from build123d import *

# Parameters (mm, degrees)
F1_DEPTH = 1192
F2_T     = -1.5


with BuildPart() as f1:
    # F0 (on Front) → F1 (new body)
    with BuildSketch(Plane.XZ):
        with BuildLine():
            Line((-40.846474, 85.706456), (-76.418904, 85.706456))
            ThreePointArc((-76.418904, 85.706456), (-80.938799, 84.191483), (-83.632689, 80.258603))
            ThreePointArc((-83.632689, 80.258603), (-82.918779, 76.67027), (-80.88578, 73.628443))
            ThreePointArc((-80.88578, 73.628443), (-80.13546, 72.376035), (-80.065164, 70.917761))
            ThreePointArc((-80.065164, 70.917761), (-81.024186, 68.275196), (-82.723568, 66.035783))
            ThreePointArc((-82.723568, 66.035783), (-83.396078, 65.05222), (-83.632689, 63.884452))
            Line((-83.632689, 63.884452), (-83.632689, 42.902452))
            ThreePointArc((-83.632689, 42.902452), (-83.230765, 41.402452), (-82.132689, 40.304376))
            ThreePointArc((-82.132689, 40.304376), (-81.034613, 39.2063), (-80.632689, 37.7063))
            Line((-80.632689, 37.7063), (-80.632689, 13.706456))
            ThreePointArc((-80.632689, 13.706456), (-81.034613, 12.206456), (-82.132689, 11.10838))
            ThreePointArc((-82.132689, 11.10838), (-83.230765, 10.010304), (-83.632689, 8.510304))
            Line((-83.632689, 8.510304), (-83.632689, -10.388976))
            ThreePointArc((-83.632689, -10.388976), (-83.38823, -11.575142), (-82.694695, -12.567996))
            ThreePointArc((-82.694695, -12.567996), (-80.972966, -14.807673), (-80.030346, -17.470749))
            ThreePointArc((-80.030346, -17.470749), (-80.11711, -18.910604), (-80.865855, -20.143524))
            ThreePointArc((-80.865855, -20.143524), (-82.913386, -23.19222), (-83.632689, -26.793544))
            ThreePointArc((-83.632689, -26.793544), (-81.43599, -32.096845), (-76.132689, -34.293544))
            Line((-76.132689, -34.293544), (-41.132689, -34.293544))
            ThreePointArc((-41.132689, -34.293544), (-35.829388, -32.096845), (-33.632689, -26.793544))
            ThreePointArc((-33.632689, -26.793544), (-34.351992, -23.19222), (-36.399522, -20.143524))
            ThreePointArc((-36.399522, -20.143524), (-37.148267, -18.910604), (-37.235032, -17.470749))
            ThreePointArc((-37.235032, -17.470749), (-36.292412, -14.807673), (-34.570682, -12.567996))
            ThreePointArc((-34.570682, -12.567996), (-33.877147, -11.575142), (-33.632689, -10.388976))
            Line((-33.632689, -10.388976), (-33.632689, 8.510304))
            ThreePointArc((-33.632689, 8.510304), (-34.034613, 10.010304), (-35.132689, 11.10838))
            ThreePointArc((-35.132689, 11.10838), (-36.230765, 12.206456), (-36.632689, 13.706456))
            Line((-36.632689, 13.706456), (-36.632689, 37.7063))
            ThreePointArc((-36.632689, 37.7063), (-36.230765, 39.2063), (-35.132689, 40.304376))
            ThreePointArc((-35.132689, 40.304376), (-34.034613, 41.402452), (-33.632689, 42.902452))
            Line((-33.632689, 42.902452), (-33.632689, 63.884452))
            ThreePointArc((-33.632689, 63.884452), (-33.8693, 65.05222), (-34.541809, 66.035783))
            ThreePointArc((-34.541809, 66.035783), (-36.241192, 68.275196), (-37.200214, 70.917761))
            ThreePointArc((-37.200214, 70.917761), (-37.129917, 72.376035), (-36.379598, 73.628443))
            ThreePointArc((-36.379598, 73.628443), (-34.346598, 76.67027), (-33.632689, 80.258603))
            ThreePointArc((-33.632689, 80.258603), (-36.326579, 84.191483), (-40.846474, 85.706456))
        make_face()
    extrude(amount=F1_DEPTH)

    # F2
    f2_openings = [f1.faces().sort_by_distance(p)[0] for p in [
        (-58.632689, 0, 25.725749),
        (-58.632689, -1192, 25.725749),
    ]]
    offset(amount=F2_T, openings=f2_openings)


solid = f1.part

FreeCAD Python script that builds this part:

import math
import FreeCAD as App
import Part
import Sketcher
Q = App.Units.Quantity


def faces_at(feature, points):
    """Names of the faces that lie closest to the given points."""
    faces = feature.Shape.Faces
    near = lambda p: min(range(len(faces)), key=lambda i: faces[i].distToShape(Part.Vertex(*p))[0])
    return sorted({f"Face{near(p) + 1}" for p in points})

doc = App.newDocument("Part")
params = doc.addObject("Spreadsheet::Sheet", "Params")
for row, (alias, value) in enumerate([
    ("sketch1_radius", "2.999998 mm"),
    ("sketch1_radius2", "3.000001 mm"),
    ("sketch1_radius3", "8.999999 mm"),
    ("sketch1_radius4", "7.5 mm"),
    ("sketch1_width", "35 mm"),
    ("pad1_length", "1192 mm"),
    ("thickness_wall", "1.5 mm"),
], start=1):
    params.set(f"A{row}", alias)
    params.set(f"B{row}", "=" + value)
    params.setAlias(f"B{row}", alias)

body = doc.addObject("PartDesign::Body", "Body")

# Sketch on XZ plane
sketch1 = body.newObject("Sketcher::SketchObject", "Sketch")
sketch1.AttachmentSupport = (doc.getObject("XZ_Plane"), [""])
sketch1.MapMode = "FlatFace"
sketch1.addGeometry([
    Part.LineSegment(App.Vector(-40.8, 85.7, 0), App.Vector(-76.4, 85.7, 0)),  # 0
    Part.ArcOfCircle(Part.Circle(App.Vector(-76.4, 78.2, 0), App.Vector(0, 0, 1), 7.5), math.radians(90), math.radians(164)),  # 1
    Part.ArcOfCircle(Part.Circle(App.Vector(-74.3, 80.3, 0), App.Vector(0, 0, 1), 9.4), math.radians(-180), math.radians(-135)),  # 2
    Part.ArcOfCircle(Part.Circle(App.Vector(-83, 71.5, 0), App.Vector(0, 0, 1), 3), math.radians(-11), math.radians(45)),  # 3
    Part.ArcOfCircle(Part.Circle(App.Vector(-89.3, 72.8, 0), App.Vector(0, 0, 1), 9.4), math.radians(-46), math.radians(-11)),  # 4
    Part.ArcOfCircle(Part.Circle(App.Vector(-80.6, 63.9, 0), App.Vector(0, 0, 1), 3), math.radians(134), math.radians(180)),  # 5
    Part.LineSegment(App.Vector(-83.6, 63.9, 0), App.Vector(-83.6, 42.9, 0)),  # 6
    Part.ArcOfCircle(Part.Circle(App.Vector(-80.6, 42.9, 0), App.Vector(0, 0, 1), 3), math.radians(-180), math.radians(-120)),  # 7
    Part.ArcOfCircle(Part.Circle(App.Vector(-83.6, 37.7, 0), App.Vector(0, 0, 1), 3), math.radians(0), math.radians(60)),  # 8
    Part.LineSegment(App.Vector(-80.6, 37.7, 0), App.Vector(-80.6, 13.7, 0)),  # 9
    Part.ArcOfCircle(Part.Circle(App.Vector(-83.6, 13.7, 0), App.Vector(0, 0, 1), 3), math.radians(-60), math.radians(0)),  # 10
    Part.ArcOfCircle(Part.Circle(App.Vector(-80.6, 8.5, 0), App.Vector(0, 0, 1), 3), math.radians(120), math.radians(180)),  # 11
    Part.LineSegment(App.Vector(-83.6, 8.5, 0), App.Vector(-83.6, -10.4, 0)),  # 12
    Part.ArcOfCircle(Part.Circle(App.Vector(-80.6, -10.4, 0), App.Vector(0, 0, 1), 3), math.radians(-180), math.radians(-133)),  # 13
    Part.ArcOfCircle(Part.Circle(App.Vector(-88.9, -19.1, 0), App.Vector(0, 0, 1), 9), math.radians(10), math.radians(47)),  # 14
    Part.ArcOfCircle(Part.Circle(App.Vector(-83, -18, 0), App.Vector(0, 0, 1), 3), math.radians(-45), math.radians(10)),  # 15
    Part.ArcOfCircle(Part.Circle(App.Vector(-74.3, -26.8, 0), App.Vector(0, 0, 1), 9.4), math.radians(135), math.radians(180)),  # 16
    Part.ArcOfCircle(Part.Circle(App.Vector(-76.1, -26.8, 0), App.Vector(0, 0, 1), 7.5), math.radians(180), math.radians(270)),  # 17
    Part.LineSegment(App.Vector(-76.1, -34.3, 0), App.Vector(-41.1, -34.3, 0)),  # 18
    Part.ArcOfCircle(Part.Circle(App.Vector(-41.1, -26.8, 0), App.Vector(0, 0, 1), 7.5), math.radians(-90), math.radians(0)),  # 19
    Part.ArcOfCircle(Part.Circle(App.Vector(-43, -26.8, 0), App.Vector(0, 0, 1), 9.4), math.radians(0), math.radians(45)),  # 20
    Part.ArcOfCircle(Part.Circle(App.Vector(-34.3, -18, 0), App.Vector(0, 0, 1), 3), math.radians(170), math.radians(225)),  # 21
    Part.ArcOfCircle(Part.Circle(App.Vector(-28.4, -19.1, 0), App.Vector(0, 0, 1), 9), math.radians(133), math.radians(170)),  # 22
    Part.ArcOfCircle(Part.Circle(App.Vector(-36.6, -10.4, 0), App.Vector(0, 0, 1), 3), math.radians(-47), math.radians(0)),  # 23
    Part.LineSegment(App.Vector(-33.6, -10.4, 0), App.Vector(-33.6, 8.5, 0)),  # 24
    Part.ArcOfCircle(Part.Circle(App.Vector(-36.6, 8.5, 0), App.Vector(0, 0, 1), 3), math.radians(0), math.radians(60)),  # 25
    Part.ArcOfCircle(Part.Circle(App.Vector(-33.6, 13.7, 0), App.Vector(0, 0, 1), 3), math.radians(-180), math.radians(-120)),  # 26
    Part.LineSegment(App.Vector(-36.6, 13.7, 0), App.Vector(-36.6, 37.7, 0)),  # 27
    Part.ArcOfCircle(Part.Circle(App.Vector(-33.6, 37.7, 0), App.Vector(0, 0, 1), 3), math.radians(120), math.radians(180)),  # 28
    Part.ArcOfCircle(Part.Circle(App.Vector(-36.6, 42.9, 0), App.Vector(0, 0, 1), 3), math.radians(-60), math.radians(0)),  # 29
    Part.LineSegment(App.Vector(-33.6, 42.9, 0), App.Vector(-33.6, 63.9, 0)),  # 30
    Part.ArcOfCircle(Part.Circle(App.Vector(-36.6, 63.9, 0), App.Vector(0, 0, 1), 3), math.radians(0), math.radians(46)),  # 31
    Part.ArcOfCircle(Part.Circle(App.Vector(-28, 72.8, 0), App.Vector(0, 0, 1), 9.4), math.radians(-169), math.radians(-134)),  # 32
    Part.ArcOfCircle(Part.Circle(App.Vector(-34.3, 71.5, 0), App.Vector(0, 0, 1), 3), math.radians(135), math.radians(191)),  # 33
    Part.ArcOfCircle(Part.Circle(App.Vector(-43, 80.3, 0), App.Vector(0, 0, 1), 9.4), math.radians(-45), math.radians(0)),  # 34
    Part.ArcOfCircle(Part.Circle(App.Vector(-40.8, 78.2, 0), App.Vector(0, 0, 1), 7.5), math.radians(16), math.radians(90)),  # 35
], False)
sketch1.addConstraint([
    Sketcher.Constraint("Tangent", 0, 2, 1, 1),
    Sketcher.Constraint("Coincident", 1, 2, 2, 1),
    Sketcher.Constraint("Tangent", 2, 2, 3, 2),
    Sketcher.Constraint("Tangent", 3, 1, 4, 2),
    Sketcher.Constraint("Tangent", 4, 1, 5, 1),
    Sketcher.Constraint("Tangent", 5, 2, 6, 1),
    Sketcher.Constraint("Tangent", 6, 2, 7, 1),
    Sketcher.Constraint("Tangent", 7, 2, 8, 2),
    Sketcher.Constraint("Tangent", 8, 1, 9, 1),
    Sketcher.Constraint("Tangent", 9, 2, 10, 2),
    Sketcher.Constraint("Tangent", 10, 1, 11, 1),
    Sketcher.Constraint("Tangent", 11, 2, 12, 1),
    Sketcher.Constraint("Tangent", 12, 2, 13, 1),
    Sketcher.Constraint("Tangent", 13, 2, 14, 2),
    Sketcher.Constraint("Tangent", 14, 1, 15, 2),
    Sketcher.Constraint("Tangent", 15, 1, 16, 1),
    Sketcher.Constraint("Tangent", 16, 2, 17, 1),
    Sketcher.Constraint("Tangent", 17, 2, 18, 1),
    Sketcher.Constraint("Tangent", 18, 2, 19, 1),
    Sketcher.Constraint("Tangent", 19, 2, 20, 1),
    Sketcher.Constraint("Tangent", 20, 2, 21, 2),
    Sketcher.Constraint("Tangent", 21, 1, 22, 2),
    Sketcher.Constraint("Tangent", 22, 1, 23, 1),
    Sketcher.Constraint("Tangent", 23, 2, 24, 1),
    Sketcher.Constraint("Tangent", 24, 2, 25, 1),
    Sketcher.Constraint("Tangent", 25, 2, 26, 2),
    Sketcher.Constraint("Tangent", 26, 1, 27, 1),
    Sketcher.Constraint("Tangent", 27, 2, 28, 2),
    Sketcher.Constraint("Tangent", 28, 1, 29, 1),
    Sketcher.Constraint("Tangent", 29, 2, 30, 1),
    Sketcher.Constraint("Tangent", 30, 2, 31, 1),
    Sketcher.Constraint("Tangent", 31, 2, 32, 2),
    Sketcher.Constraint("Tangent", 32, 1, 33, 2),
    Sketcher.Constraint("Tangent", 33, 1, 34, 1),
    Sketcher.Constraint("Coincident", 34, 2, 35, 1),
    Sketcher.Constraint("Tangent", 35, 2, 0, 1),
    Sketcher.Constraint("Horizontal", 0),
    Sketcher.Constraint("Vertical", 6),
    Sketcher.Constraint("Vertical", 9),
    Sketcher.Constraint("Vertical", 12),
    Sketcher.Constraint("Horizontal", 18),
    Sketcher.Constraint("Vertical", 24),
    Sketcher.Constraint("Vertical", 27),
    Sketcher.Constraint("Vertical", 30),
    Sketcher.Constraint("Equal", 3, 5),
    Sketcher.Constraint("Equal", 7, 8),
    Sketcher.Constraint("Equal", 8, 10),
    Sketcher.Constraint("Equal", 10, 11),
    Sketcher.Constraint("Equal", 3, 15),
    Sketcher.Constraint("Equal", 1, 17),
    Sketcher.Constraint("Equal", 17, 19),
    Sketcher.Constraint("Equal", 2, 20),
    Sketcher.Constraint("Equal", 11, 21),
    Sketcher.Constraint("Equal", 21, 23),
    Sketcher.Constraint("Equal", 21, 25),
    Sketcher.Constraint("Equal", 25, 26),
    Sketcher.Constraint("Equal", 26, 28),
    Sketcher.Constraint("Equal", 28, 29),
    Sketcher.Constraint("Equal", 13, 31),
    Sketcher.Constraint("Equal", 13, 33),
    Sketcher.Constraint("Equal", 19, 35),
    Sketcher.Constraint("Horizontal", 16, 3, 17, 3),
    Sketcher.Constraint("Horizontal", 19, 3, 20, 3),
    Sketcher.Constraint("Horizontal", 11, 3, 25, 3),
    Sketcher.Constraint("Horizontal", 10, 3, 26, 3),
    Sketcher.Constraint("Horizontal", 8, 3, 28, 3),
    Sketcher.Constraint("Horizontal", 7, 3, 29, 3),
    Sketcher.Constraint("Horizontal", 5, 3, 31, 3),
    Sketcher.Constraint("Horizontal", 23, 3, 12, 2),
    Sketcher.Constraint("Horizontal", 15, 1, 20, 2),
    Sketcher.Constraint("Horizontal", 14, 1, 21, 1),
    Sketcher.Constraint("Horizontal", 13, 2, 22, 1),
    Sketcher.Constraint("Horizontal", 4, 1, 31, 2),
    Sketcher.Constraint("Horizontal", 3, 1, 32, 1),
    Sketcher.Constraint("Horizontal", 2, 2, 33, 1),
    Sketcher.Constraint("Horizontal", 1, 2, 34, 2),
    Sketcher.Constraint("Vertical", 7, 3, 11, 3),
    Sketcher.Constraint("Vertical", 10, 3, 1, 2),
    Sketcher.Constraint("Vertical", 1, 2, 5, 2),
    Sketcher.Constraint("Vertical", 12, 2, 16, 2),
    Sketcher.Constraint("Vertical", 28, 3, 19, 2),
    Sketcher.Constraint("Vertical", 30, 2, 34, 2),
    Sketcher.Constraint("Radius", 5, Q("2.999998 mm")),
    Sketcher.Constraint("Radius", 7, Q("3.000001 mm")),
    Sketcher.Constraint("Radius", 14, Q("8.999999 mm")),
    Sketcher.Constraint("Radius", 1, Q("7.5 mm")),
    Sketcher.Constraint("DistanceX", 18, 1, 18, 2, Q("35 mm")),
    Sketcher.Constraint("Radius", 16, Q("9.375 mm")),
    Sketcher.Constraint("DistanceY", 6, 2, 6, 1, Q("20.982 mm")),
    Sketcher.Constraint("Radius", 22, Q("8.999992 mm")),
    Sketcher.Constraint("Radius", 32, Q("9.374589 mm")),
    Sketcher.Constraint("Radius", 34, Q("9.374992 mm")),
    Sketcher.Constraint("DistanceX", 0, 2, 0, 1, Q("35.57243 mm")),
    Sketcher.Constraint("DistanceY", 12, 2, 12, 1, Q("18.89928 mm")),
    Sketcher.Constraint("DistanceY", -1, 1, 4, 3, Q("72.758401 mm")),
    Sketcher.Constraint("DistanceY", -1, 1, 8, 3, Q("37.7063 mm")),
    Sketcher.Constraint("DistanceX", 32, 3, -1, 1, Q("28.008099 mm")),
    Sketcher.Constraint("DistanceY", -1, 1, 34, 3, Q("80.2586 mm")),
    Sketcher.Constraint("DistanceY", 9, 2, 9, 1, Q("23.999844 mm")),
    Sketcher.Constraint("DistanceY", 15, 3, -1, 1, Q("18.01552 mm")),
    Sketcher.Constraint("DistanceX", 21, 3, -1, 1, Q("34.284909 mm")),
    Sketcher.Constraint("DistanceY", -1, 1, 1, 3, Q("78.206456 mm")),
])
sketch1.setExpression("Constraints[82]", "Params.sketch1_radius")
sketch1.setExpression("Constraints[83]", "Params.sketch1_radius2")
sketch1.setExpression("Constraints[84]", "Params.sketch1_radius3")
sketch1.setExpression("Constraints[85]", "Params.sketch1_radius4")
sketch1.setExpression("Constraints[86]", "Params.sketch1_width")
pad1 = body.newObject("PartDesign::Pad", "Pad")
pad1.Profile = sketch1
pad1.setExpression("Length", "Params.pad1_length")
doc.recompute()

thickness = body.newObject("PartDesign::Thickness", "Thickness")
thickness.Base = (pad1, faces_at(pad1, [(-58.633, 0, 25.706), (-58.633, -1192, 25.706)]))
thickness.setExpression("Value", "Params.thickness_wall")
thickness.Reversed = True
thickness.Join = "Arc"

doc.recompute()
